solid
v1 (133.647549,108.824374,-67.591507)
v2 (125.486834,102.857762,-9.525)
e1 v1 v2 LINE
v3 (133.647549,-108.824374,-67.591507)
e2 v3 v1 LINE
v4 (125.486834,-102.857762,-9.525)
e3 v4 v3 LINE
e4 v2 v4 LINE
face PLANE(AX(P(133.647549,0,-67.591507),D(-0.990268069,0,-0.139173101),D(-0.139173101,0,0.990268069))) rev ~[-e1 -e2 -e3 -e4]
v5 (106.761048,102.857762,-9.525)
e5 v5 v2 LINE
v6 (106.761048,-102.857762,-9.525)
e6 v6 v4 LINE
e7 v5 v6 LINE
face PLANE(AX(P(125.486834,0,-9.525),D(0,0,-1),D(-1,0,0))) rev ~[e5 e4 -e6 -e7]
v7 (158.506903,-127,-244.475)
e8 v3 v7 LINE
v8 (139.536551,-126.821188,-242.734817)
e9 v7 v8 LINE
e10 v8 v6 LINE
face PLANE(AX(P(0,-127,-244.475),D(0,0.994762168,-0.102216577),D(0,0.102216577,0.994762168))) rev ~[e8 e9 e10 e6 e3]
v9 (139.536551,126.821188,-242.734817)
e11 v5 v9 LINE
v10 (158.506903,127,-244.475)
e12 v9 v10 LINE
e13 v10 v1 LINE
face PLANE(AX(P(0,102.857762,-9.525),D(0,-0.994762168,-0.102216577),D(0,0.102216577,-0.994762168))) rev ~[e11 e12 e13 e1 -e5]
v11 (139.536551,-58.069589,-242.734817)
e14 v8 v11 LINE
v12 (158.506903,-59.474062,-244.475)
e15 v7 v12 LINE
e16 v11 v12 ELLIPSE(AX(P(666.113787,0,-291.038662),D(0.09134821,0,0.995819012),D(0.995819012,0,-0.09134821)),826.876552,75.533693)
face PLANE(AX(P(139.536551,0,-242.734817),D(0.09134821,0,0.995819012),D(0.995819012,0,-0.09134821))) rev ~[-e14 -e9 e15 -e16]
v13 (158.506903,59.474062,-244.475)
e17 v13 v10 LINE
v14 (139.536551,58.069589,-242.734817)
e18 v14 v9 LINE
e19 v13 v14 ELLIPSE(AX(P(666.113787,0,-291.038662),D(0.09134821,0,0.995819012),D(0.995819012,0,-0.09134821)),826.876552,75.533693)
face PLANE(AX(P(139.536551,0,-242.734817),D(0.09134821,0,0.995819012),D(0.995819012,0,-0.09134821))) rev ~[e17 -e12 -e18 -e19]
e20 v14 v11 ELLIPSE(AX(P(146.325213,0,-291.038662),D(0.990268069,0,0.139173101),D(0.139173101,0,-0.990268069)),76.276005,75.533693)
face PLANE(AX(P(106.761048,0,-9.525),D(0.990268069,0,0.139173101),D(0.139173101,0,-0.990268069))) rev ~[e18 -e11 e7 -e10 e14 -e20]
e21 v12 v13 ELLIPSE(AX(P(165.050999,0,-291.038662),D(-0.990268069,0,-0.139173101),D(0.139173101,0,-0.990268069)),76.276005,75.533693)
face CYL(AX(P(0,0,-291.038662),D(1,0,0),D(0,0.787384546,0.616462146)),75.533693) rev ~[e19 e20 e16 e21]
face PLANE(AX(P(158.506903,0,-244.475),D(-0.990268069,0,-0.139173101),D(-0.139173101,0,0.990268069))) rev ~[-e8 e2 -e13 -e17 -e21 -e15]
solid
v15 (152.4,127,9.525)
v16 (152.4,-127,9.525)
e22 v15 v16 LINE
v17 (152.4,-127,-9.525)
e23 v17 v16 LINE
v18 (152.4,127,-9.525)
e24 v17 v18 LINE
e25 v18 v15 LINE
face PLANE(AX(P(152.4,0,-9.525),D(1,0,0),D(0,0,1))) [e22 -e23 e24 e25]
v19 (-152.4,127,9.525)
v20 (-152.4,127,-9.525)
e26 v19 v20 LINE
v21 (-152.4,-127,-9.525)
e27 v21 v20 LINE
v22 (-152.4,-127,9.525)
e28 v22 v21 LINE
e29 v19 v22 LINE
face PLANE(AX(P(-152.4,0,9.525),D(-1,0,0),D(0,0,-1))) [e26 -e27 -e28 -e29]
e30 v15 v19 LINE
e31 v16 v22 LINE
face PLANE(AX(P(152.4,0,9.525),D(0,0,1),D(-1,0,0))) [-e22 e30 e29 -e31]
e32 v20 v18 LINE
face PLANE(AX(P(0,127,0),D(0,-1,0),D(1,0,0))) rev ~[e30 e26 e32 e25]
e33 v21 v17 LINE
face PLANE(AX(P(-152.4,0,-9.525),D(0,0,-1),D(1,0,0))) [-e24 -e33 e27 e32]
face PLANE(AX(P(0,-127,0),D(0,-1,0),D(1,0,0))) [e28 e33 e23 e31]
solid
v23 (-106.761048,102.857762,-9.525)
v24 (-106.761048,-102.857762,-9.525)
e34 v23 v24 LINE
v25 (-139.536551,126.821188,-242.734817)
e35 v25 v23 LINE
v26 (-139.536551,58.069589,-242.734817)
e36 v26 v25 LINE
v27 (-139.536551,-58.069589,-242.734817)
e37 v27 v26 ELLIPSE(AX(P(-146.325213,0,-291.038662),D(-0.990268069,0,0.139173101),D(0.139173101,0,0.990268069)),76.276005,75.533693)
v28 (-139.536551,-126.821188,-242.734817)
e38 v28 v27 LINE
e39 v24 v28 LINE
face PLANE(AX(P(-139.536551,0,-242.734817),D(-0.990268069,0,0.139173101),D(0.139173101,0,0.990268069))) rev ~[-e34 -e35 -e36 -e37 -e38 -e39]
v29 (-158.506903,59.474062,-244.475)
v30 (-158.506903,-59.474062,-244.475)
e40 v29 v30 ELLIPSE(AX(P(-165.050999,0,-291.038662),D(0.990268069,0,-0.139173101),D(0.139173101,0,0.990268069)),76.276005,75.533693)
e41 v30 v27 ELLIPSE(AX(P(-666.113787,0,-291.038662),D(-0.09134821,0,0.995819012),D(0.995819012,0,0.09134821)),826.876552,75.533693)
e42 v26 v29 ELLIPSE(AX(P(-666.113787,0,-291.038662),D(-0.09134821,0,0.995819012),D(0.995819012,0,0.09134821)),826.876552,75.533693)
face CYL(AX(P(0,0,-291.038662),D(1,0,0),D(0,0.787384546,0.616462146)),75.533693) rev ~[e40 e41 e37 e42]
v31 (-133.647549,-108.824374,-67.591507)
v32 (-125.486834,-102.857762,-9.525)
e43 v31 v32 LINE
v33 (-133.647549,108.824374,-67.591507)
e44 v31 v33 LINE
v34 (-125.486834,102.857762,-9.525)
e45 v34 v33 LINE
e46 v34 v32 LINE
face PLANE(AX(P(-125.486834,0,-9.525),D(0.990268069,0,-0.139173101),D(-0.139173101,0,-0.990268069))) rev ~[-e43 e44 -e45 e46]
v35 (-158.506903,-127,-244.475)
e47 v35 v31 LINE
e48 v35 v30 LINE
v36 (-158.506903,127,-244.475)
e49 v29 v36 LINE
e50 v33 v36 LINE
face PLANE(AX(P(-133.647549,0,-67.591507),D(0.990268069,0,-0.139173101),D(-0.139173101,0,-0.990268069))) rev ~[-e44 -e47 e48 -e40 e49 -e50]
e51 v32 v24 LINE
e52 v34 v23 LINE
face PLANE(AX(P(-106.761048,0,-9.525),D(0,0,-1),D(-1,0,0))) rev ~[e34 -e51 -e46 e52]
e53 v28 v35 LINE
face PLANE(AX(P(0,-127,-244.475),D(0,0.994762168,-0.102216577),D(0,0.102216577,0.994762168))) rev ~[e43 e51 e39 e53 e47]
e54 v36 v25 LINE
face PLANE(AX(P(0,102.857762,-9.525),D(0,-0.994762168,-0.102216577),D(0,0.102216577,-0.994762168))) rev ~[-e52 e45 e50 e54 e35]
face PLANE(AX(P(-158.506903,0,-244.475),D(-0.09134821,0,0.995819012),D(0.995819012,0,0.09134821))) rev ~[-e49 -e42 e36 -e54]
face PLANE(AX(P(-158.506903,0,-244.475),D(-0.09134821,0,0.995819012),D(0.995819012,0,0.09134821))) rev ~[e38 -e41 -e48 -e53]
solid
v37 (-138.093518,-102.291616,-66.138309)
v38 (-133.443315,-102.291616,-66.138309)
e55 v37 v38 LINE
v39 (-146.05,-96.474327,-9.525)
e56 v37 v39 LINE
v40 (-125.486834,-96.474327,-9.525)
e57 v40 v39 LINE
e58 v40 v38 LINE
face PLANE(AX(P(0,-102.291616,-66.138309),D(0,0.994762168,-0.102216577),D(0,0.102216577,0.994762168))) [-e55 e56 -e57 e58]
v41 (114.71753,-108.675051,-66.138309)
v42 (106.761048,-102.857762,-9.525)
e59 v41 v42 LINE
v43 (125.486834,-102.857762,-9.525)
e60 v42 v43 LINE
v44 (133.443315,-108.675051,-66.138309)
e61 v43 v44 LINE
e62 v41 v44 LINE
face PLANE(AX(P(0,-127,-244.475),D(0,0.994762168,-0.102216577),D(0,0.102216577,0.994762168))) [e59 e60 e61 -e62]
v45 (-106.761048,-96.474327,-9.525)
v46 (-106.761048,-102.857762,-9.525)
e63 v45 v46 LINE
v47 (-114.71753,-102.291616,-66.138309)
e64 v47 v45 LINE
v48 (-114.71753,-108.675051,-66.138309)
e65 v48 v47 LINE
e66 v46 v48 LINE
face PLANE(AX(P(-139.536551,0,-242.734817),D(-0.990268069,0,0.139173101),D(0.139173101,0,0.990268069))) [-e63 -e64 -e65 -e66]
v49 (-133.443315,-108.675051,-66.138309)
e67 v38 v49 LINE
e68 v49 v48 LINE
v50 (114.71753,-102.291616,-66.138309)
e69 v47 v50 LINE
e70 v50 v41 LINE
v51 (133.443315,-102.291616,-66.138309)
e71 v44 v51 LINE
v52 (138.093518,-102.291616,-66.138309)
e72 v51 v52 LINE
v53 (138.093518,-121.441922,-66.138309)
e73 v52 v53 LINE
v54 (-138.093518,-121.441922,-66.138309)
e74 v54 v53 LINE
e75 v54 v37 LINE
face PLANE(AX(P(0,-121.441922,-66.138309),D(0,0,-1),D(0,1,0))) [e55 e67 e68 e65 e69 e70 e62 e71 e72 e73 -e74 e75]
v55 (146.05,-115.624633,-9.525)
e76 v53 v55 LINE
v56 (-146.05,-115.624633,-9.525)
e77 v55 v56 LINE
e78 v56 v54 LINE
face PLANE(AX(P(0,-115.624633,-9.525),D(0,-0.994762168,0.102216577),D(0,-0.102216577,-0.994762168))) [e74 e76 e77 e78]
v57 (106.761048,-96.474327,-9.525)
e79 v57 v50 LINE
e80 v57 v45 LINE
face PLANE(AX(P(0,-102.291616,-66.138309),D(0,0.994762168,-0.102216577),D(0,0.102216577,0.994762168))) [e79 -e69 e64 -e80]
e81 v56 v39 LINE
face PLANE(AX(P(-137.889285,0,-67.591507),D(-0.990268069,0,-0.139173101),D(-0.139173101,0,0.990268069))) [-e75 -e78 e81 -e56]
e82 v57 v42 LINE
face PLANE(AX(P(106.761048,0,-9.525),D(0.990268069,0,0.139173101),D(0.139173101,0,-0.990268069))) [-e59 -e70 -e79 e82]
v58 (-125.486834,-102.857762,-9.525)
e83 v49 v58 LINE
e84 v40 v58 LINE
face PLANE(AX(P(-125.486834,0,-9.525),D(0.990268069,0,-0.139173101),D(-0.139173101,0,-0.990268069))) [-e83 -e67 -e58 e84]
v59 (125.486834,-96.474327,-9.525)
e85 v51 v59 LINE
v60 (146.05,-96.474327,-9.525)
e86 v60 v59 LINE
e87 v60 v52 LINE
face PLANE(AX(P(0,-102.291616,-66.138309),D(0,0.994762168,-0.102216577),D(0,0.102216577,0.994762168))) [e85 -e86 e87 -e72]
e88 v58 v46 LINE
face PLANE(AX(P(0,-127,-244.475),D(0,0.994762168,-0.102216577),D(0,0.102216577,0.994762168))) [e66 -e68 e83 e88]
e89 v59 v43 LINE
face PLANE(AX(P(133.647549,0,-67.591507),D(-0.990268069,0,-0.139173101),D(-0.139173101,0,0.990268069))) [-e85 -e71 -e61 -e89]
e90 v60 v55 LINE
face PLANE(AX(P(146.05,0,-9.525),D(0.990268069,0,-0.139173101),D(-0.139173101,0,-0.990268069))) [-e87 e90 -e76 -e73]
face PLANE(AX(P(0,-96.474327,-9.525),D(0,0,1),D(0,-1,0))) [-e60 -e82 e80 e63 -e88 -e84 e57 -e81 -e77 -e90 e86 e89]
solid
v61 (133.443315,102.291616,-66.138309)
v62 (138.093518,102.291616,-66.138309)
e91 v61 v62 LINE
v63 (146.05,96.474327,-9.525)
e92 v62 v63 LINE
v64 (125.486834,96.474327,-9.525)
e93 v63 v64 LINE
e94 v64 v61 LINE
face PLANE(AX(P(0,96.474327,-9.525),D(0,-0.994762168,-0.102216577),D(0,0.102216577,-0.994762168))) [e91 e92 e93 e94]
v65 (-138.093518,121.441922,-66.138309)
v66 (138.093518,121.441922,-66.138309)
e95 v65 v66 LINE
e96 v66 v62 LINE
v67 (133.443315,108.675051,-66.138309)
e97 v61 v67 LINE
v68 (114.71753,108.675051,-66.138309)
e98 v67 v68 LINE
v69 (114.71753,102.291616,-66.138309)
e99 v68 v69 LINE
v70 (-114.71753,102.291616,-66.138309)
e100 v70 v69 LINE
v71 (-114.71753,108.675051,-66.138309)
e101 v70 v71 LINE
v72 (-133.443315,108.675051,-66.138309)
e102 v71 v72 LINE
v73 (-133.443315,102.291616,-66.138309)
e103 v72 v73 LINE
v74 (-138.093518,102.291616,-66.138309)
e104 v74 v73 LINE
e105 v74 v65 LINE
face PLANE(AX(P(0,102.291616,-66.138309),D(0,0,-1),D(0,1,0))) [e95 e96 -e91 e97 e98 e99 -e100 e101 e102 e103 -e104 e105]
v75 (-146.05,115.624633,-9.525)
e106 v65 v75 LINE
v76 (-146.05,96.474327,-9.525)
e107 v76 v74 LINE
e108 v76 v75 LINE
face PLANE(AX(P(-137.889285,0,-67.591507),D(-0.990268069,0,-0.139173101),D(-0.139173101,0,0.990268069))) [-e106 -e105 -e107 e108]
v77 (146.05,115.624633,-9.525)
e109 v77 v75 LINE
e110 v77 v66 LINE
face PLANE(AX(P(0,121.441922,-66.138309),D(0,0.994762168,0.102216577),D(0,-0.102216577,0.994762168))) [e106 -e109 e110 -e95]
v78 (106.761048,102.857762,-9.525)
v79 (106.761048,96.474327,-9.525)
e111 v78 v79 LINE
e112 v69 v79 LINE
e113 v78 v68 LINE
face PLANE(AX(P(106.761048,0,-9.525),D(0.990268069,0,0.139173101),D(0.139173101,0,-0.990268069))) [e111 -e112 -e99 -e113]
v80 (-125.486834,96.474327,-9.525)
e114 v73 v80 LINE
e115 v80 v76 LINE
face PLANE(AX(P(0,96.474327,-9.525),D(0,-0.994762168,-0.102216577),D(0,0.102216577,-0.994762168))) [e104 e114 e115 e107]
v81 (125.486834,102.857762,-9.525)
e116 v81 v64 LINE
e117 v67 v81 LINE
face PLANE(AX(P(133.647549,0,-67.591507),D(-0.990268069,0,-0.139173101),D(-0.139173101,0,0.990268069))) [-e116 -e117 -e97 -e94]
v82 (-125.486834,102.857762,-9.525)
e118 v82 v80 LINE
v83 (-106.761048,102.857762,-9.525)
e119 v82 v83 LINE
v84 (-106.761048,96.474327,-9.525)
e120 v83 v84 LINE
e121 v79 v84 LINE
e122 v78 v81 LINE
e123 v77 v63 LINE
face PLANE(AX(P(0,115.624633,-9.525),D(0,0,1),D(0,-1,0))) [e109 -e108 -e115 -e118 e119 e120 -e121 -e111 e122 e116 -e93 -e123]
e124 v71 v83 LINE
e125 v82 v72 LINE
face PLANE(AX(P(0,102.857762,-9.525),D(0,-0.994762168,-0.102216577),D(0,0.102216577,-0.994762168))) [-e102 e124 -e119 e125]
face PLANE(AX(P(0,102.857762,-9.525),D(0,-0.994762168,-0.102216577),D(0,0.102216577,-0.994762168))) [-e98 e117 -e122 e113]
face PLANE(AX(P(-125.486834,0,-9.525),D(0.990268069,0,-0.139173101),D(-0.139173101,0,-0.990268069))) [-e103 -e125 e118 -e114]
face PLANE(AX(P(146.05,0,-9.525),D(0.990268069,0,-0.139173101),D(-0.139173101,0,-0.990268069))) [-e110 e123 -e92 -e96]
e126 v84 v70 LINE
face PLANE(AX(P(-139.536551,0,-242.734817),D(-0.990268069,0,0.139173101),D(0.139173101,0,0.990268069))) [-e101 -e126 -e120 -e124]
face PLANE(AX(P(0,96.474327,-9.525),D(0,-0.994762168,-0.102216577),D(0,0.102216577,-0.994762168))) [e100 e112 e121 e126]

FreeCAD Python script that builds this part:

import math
import FreeCAD as App
import Part
import Sketcher
Q = App.Units.Quantity


def add_polygon(sketch, points):
    """Adds a closed chain of lines whose ends are joined by coincident constraints."""
    first, n = sketch.GeometryCount, len(points)
    for a, b in zip(points, points[1:] + points[:1]):
        sketch.addGeometry(Part.LineSegment(App.Vector(*a, 0), App.Vector(*b, 0)), False)
    for i in range(n):
        sketch.addConstraint(Sketcher.Constraint("Coincident", first + i, 2, first + (i + 1) % n, 1))

doc = App.newDocument("Part")
body = doc.addObject("PartDesign::Body", "Body")

sketch1 = body.newObject("Sketcher::SketchObject", "Sketch")
sketch1.AttachmentSupport = (doc.getObject("XZ_Plane"), [""])
sketch1.MapMode = "FlatFace"
add_polygon(sketch1, [(152, -10), (152, 10), (-152, 10), (-152, -10)])
sketch1.addConstraint(Sketcher.Constraint("Vertical", 0))
sketch1.addConstraint(Sketcher.Constraint("Horizontal", 1))
sketch1.addConstraint(Sketcher.Constraint("Vertical", 2))
sketch1.addConstraint(Sketcher.Constraint("Horizontal", 3))
sketch1.addConstraint(Sketcher.Constraint("Symmetric", 0, 2, 2, 2, -1, 1))
sketch1.addConstraint(Sketcher.Constraint("DistanceX", 1, 2, 1, 1, Q("12 in")))
sketch1.addConstraint(Sketcher.Constraint("DistanceY", 0, 1, 0, 2, Q("0.75 in")))
pad1 = body.newObject("PartDesign::Pad", "Pad")
pad1.Profile = sketch1
pad1.Length = Q("10 in")
pad1.Midplane = True
body2 = doc.addObject("PartDesign::Body", "Body001")

sketch2 = body2.newObject("Sketcher::SketchObject", "Sketch001")
sketch2.AttachmentSupport = (doc.getObject("XZ_Plane001"), [""])
sketch2.MapMode = "FlatFace"
add_polygon(sketch2, [(-140, -243), (-107, -10), (-125, -10), (-134, -68), (-159, -244)])
sketch2.addConstraint(Sketcher.Constraint("Horizontal", 1))
sketch2.addConstraint(Sketcher.Constraint("Parallel", 0, 2))
sketch2.addConstraint(Sketcher.Constraint("Parallel", 2, 3))
sketch2.addConstraint(Sketcher.Constraint("Angle", 0, Q("82 deg")))
sketch2.addConstraint(Sketcher.Constraint("Distance", 4, Q("0.75 in")))
sketch2.addConstraint(Sketcher.Constraint("DistanceY", 3, 2, 1, 2, Q("9.25 in")))
sketch2.addConstraint(Sketcher.Constraint("DistanceY", 0, 2, -1, 1, Q("0.375 in")))
sketch2.addConstraint(Sketcher.Constraint("DistanceX", 2, 2, 0, 2, Q("26.886501 mm")))
sketch2.addConstraint(Sketcher.Constraint("DistanceX", 4, 2, 2, 2, Q("5.889002 mm")))
sketch2.addConstraint(Sketcher.Constraint("DistanceX", 0, 2, -1, 1, Q("106.761048 mm")))
pad2 = body2.newObject("PartDesign::Pad", "Pad001")
pad2.Profile = sketch2
pad2.Type = "TwoLengths"
pad2.Length = Q("5 in")
pad2.Length2 = Q("5 in")
pad2.Reversed = True
body3 = doc.addObject("PartDesign::Body", "Body002")

sketch3 = body3.newObject("Sketcher::SketchObject", "Sketch002")
sketch3.AttachmentSupport = (doc.getObject("XZ_Plane002"), [""])
sketch3.MapMode = "FlatFace"
add_polygon(sketch3, [(134, -68), (125, -10), (107, -10), (140, -243), (159, -244)])
sketch3.addConstraint(Sketcher.Constraint("Horizontal", 1))
sketch3.addConstraint(Sketcher.Constraint("Parallel", 0, 2))
sketch3.addConstraint(Sketcher.Constraint("Parallel", 2, 4))
sketch3.addConstraint(Sketcher.Constraint("Angle", 0, Q("98 deg")))
sketch3.addConstraint(Sketcher.Constraint("Distance", 3, Q("0.75 in")))
sketch3.addConstraint(Sketcher.Constraint("DistanceY", 3, 2, 0, 2, Q("9.25 in")))
sketch3.addConstraint(Sketcher.Constraint("DistanceY", 0, 2, -1, 1, Q("0.375 in")))
sketch3.addConstraint(Sketcher.Constraint("DistanceX", 1, 2, 4, 2, Q("26.886501 mm")))
sketch3.addConstraint(Sketcher.Constraint("DistanceX", 4, 2, 2, 2, Q("5.889002 mm")))
sketch3.addConstraint(Sketcher.Constraint("DistanceX", -1, 1, 1, 2, Q("106.761048 mm")))
pad3 = body3.newObject("PartDesign::Pad", "Pad002")
pad3.Profile = sketch3
pad3.Type = "TwoLengths"
pad3.Length = Q("5 in")
pad3.Length2 = Q("5 in")
pad3.Reversed = True
body4 = doc.addObject("PartDesign::Body", "Body003")
body4.AllowCompound = True

sketch4 = body4.newObject("Sketcher::SketchObject", "Sketch003")
sketch4.AttachmentSupport = (doc.getObject("YZ_Plane003"), [""])
sketch4.MapMode = "FlatFace"
add_polygon(sketch4, [(-127, -244), (-103, -10), (-127, -10)])
add_polygon(sketch4, [(127, -10), (103, -10), (127, -244)])
sketch4.addGeometry(Part.ArcOfCircle(Part.Circle(App.Vector(0, -291, 0), App.Vector(0, 0, 1), 76), math.radians(38), math.radians(90)), False)
sketch4.addGeometry(Part.ArcOfCircle(Part.Circle(App.Vector(0, -291, 0), App.Vector(0, 0, 1), 76), math.radians(90), math.radians(142)), False)
sketch4.addGeometry(Part.LineSegment(App.Vector(-59, -244, 0), App.Vector(59, -244, 0)), False)
sketch4.addConstraint(Sketcher.Constraint("Tangent", 6, 2, 7, 1))
sketch4.addConstraint(Sketcher.Constraint("Coincident", 7, 2, 8, 1))
sketch4.addConstraint(Sketcher.Constraint("Coincident", 8, 2, 6, 1))
sketch4.addConstraint(Sketcher.Constraint("Horizontal", 1))
sketch4.addConstraint(Sketcher.Constraint("Vertical", 2))
sketch4.addConstraint(Sketcher.Constraint("Horizontal", 3))
sketch4.addConstraint(Sketcher.Constraint("Vertical", 5))
sketch4.addConstraint(Sketcher.Constraint("Horizontal", 8))
sketch4.addConstraint(Sketcher.Constraint("Equal", 6, 7))
sketch4.addConstraint(Sketcher.Constraint("Symmetric", 0, 2, 3, 2, -2))
sketch4.addConstraint(Sketcher.Constraint("Symmetric", 2, 2, 4, 2, -2))
sketch4.addConstraint(Sketcher.Constraint("PointOnObject", 6, 3, -2))
sketch4.addConstraint(Sketcher.Constraint("PointOnObject", 6, 2, -2))
sketch4.addConstraint(Sketcher.Constraint("Horizontal", 4, 2, 7, 2))
sketch4.addConstraint(Sketcher.Constraint("DistanceX", 1, 2, -1, 1, Q("5 in")))
sketch4.addConstraint(Sketcher.Constraint("DistanceY", 2, 2, 2, 1, Q("9.25 in")))
sketch4.addConstraint(Sketcher.Constraint("DistanceY", 0, 2, -1, 1, Q("0.375 in")))
sketch4.addConstraint(Sketcher.Constraint("Radius", 6, Q("75.533693 mm")))
sketch4.addConstraint(Sketcher.Constraint("Distance", 0, Q("236.187108 mm")))
sketch4.addConstraint(Sketcher.Constraint("DistanceX", 8, 1, 8, 2, Q("118.948124 mm")))
pad4 = body4.newObject("PartDesign::Pad", "Pad003")
pad4.Profile = sketch4
pad4.Type = "TwoLengths"
pad4.Length = 158.507903
pad4.Length2 = 158.507903
doc.recompute()

body5 = doc.addObject("PartDesign::Body", "Body004")
body5.BaseFeature = body4
boolean = body2.newObject("PartDesign::Boolean", "Boolean")
boolean.Type = "Cut"
boolean.addObjects([body5])
doc.recompute()

boolean2 = body3.newObject("PartDesign::Boolean", "Boolean001")
boolean2.Type = "Cut"
boolean2.addObjects([body4])
body6 = doc.addObject("PartDesign::Body", "Body005")

sketch5 = body6.newObject("Sketcher::SketchObject", "Sketch004")
sketch5.AttachmentSupport = (doc.getObject("YZ_Plane005"), [""])
sketch5.MapMode = "FlatFace"
add_polygon(sketch5, [(-116, -10), (-121, -66), (-102, -66), (-96, -10)])
sketch5.addConstraint(Sketcher.Constraint("Horizontal", 1))
sketch5.addConstraint(Sketcher.Constraint("Horizontal", 3))
sketch5.addConstraint(Sketcher.Constraint("Parallel", 0, 2))
sketch5.addConstraint(Sketcher.Constraint("DistanceY", 2, 2, -1, 1, Q("0.375 in")))
sketch5.addConstraint(Sketcher.Constraint("Distance", 0, Q("56.911401 mm")))
sketch5.addConstraint(Sketcher.Constraint("DistanceX", 1, 1, 1, 2, Q("19.150306 mm")))
sketch5.addConstraint(Sketcher.Constraint("DistanceX", 0, 2, -1, 1, Q("121.441922 mm")))
sketch5.addConstraint(Sketcher.Constraint("DistanceY", 0, 2, -1, 1, Q("66.138309 mm")))
pad5 = body6.newObject("PartDesign::Pad", "Pad004")
pad5.Profile = sketch5
pad5.Type = "TwoLengths"
pad5.Length = Q("5.99 in")
pad5.Length2 = Q("5.99 in")
body7 = doc.addObject("PartDesign::Body", "Body006")

sketch6 = body7.newObject("Sketcher::SketchObject", "Sketch005")
sketch6.AttachmentSupport = (doc.getObject("YZ_Plane006"), [""])
sketch6.MapMode = "FlatFace"
add_polygon(sketch6, [(96, -10), (102, -66), (121, -66), (116, -10)])
sketch6.addConstraint(Sketcher.Constraint("Horizontal", 1))
sketch6.addConstraint(Sketcher.Constraint("Horizontal", 3))
sketch6.addConstraint(Sketcher.Constraint("Parallel", 0, 2))
sketch6.addConstraint(Sketcher.Constraint("DistanceY", 2, 2, -1, 1, Q("0.375 in")))
sketch6.addConstraint(Sketcher.Constraint("Distance", 0, Q("56.911401 mm")))
sketch6.addConstraint(Sketcher.Constraint("DistanceX", 1, 1, 1, 2, Q("19.150306 mm")))
sketch6.addConstraint(Sketcher.Constraint("DistanceY", 0, 2, -1, 1, Q("66.138309 mm")))
sketch6.addConstraint(Sketcher.Constraint("DistanceX", -1, 1, 1, 2, Q("121.441922 mm")))
pad6 = body7.newObject("PartDesign::Pad", "Pad005")
pad6.Profile = sketch6
pad6.Type = "TwoLengths"
pad6.Length = Q("5.99 in")
pad6.Length2 = Q("5.99 in")
body8 = doc.addObject("PartDesign::Body", "Body007")
body8.AllowCompound = True

sketch7 = body8.newObject("Sketcher::SketchObject", "Sketch006")
sketch7.AttachmentSupport = (doc.getObject("XZ_Plane007"), [""])
sketch7.MapMode = "FlatFace"
add_polygon(sketch7, [(-146, -10), (-152, -10), (-152, -68), (-138, -68)])
add_polygon(sketch7, [(152, -68), (152, -10), (146, -10), (138, -68)])
sketch7.addConstraint(Sketcher.Constraint("Horizontal", 0))
sketch7.addConstraint(Sketcher.Constraint("Vertical", 1))
sketch7.addConstraint(Sketcher.Constraint("Horizontal", 2))
sketch7.addConstraint(Sketcher.Constraint("Vertical", 4))
sketch7.addConstraint(Sketcher.Constraint("Horizontal", 5))
sketch7.addConstraint(Sketcher.Constraint("Horizontal", 7))
sketch7.addConstraint(Sketcher.Constraint("Symmetric", 0, 2, 4, 2, -2))
sketch7.addConstraint(Sketcher.Constraint("Symmetric", 2, 2, 6, 2, -2))
sketch7.addConstraint(Sketcher.Constraint("Equal", 0, 5))
sketch7.addConstraint(Sketcher.Constraint("DistanceX", 0, 2, -1, 1, Q("6 in")))
sketch7.addConstraint(Sketcher.Constraint("Angle", 3, Q("98 deg")))
sketch7.addConstraint(Sketcher.Constraint("DistanceX", 0, 2, 0, 1, Q("0.25 in")))
sketch7.addConstraint(Sketcher.Constraint("DistanceY", 0, 2, -1, 1, Q("0.375 in")))
sketch7.addConstraint(Sketcher.Constraint("Distance", 3, Q("58.63716 mm")))
pad7 = body8.newObject("PartDesign::Pad", "Pad006")
pad7.Profile = sketch7
pad7.Type = "TwoLengths"
pad7.Length = 127.001
pad7.Length2 = 127.001
pad7.Reversed = True
doc.recompute()

body9 = doc.addObject("PartDesign::Body", "Body008")
body9.BaseFeature = body8
boolean3 = body6.newObject("PartDesign::Boolean", "Boolean002")
boolean3.Type = "Cut"
boolean3.addObjects([body9])
doc.recompute()

body10 = doc.addObject("PartDesign::Body", "Body009")
body10.BaseFeature = body3
boolean4 = body6.newObject("PartDesign::Boolean", "Boolean003")
boolean4.Type = "Cut"
boolean4.addObjects([body10])
doc.recompute()

body11 = doc.addObject("PartDesign::Body", "Body010")
body11.BaseFeature = body2
boolean5 = body6.newObject("PartDesign::Boolean", "Boolean004")
boolean5.Type = "Cut"
boolean5.addObjects([body11])
doc.recompute()

boolean6 = body7.newObject("PartDesign::Boolean", "Boolean005")
boolean6.Type = "Cut"
boolean6.addObjects([body8])
doc.recompute()

body12 = doc.addObject("PartDesign::Body", "Body011")
body12.BaseFeature = body3
boolean7 = body7.newObject("PartDesign::Boolean", "Boolean006")
boolean7.Type = "Cut"
boolean7.addObjects([body12])
doc.recompute()

body13 = doc.addObject("PartDesign::Body", "Body012")
body13.BaseFeature = body2
boolean8 = body7.newObject("PartDesign::Boolean", "Boolean007")
boolean8.Type = "Cut"
boolean8.addObjects([body13])
doc.recompute()

doc.recompute()
